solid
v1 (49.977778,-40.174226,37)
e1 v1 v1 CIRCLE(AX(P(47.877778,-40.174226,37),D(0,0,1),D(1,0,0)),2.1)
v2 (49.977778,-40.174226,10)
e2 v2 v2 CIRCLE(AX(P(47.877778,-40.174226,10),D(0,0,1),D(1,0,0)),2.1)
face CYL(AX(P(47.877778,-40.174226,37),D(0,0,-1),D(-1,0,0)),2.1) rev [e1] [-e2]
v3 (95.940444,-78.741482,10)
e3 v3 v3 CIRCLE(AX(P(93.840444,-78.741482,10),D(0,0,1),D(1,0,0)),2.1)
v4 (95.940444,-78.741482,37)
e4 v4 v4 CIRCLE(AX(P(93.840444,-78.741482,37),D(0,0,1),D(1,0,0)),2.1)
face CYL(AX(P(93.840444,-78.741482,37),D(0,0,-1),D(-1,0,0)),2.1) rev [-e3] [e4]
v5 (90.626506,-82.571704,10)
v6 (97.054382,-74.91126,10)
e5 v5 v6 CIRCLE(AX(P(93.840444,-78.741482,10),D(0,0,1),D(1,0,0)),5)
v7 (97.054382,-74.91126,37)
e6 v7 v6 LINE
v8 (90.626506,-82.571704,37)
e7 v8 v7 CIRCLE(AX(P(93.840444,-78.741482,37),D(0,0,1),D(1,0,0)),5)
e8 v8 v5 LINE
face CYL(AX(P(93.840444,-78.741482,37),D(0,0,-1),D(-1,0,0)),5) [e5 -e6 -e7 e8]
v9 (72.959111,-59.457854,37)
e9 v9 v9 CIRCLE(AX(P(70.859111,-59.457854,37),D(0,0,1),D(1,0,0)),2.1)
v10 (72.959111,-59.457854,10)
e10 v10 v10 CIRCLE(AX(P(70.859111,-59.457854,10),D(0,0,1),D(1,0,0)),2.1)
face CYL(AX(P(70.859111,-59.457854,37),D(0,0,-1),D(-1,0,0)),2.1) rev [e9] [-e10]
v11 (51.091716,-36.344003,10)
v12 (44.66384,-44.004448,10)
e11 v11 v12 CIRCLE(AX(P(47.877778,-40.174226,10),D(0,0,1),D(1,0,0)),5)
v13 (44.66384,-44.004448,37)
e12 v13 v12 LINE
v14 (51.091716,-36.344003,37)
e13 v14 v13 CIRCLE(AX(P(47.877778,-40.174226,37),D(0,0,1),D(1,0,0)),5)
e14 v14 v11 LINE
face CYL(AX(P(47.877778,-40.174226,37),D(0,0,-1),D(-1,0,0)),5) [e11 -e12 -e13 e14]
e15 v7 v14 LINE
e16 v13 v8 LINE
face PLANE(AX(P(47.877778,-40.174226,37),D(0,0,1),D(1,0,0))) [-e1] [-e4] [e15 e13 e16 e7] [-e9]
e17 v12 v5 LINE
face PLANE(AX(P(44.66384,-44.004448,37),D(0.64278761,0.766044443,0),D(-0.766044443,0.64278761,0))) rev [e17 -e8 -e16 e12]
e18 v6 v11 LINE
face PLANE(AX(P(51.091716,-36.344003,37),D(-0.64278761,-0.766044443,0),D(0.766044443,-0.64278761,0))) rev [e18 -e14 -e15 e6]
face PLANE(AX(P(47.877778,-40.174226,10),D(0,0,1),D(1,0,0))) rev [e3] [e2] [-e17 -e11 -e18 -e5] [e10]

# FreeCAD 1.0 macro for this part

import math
import FreeCAD as App
import Part
import Sketcher
from FreeCAD import Vector
Q = App.Units.Quantity

doc = App.newDocument("Part")
body = doc.addObject("PartDesign::Body", "Body")

# Sketch on XY plane
sketch1 = body.newObject("Sketcher::SketchObject", "Sketch")
sketch1.AttachmentSupport = (doc.getObject("XY_Plane"), [""])
sketch1.MapMode = "FlatFace"
sketch1.AttachmentOffset = App.Placement(Vector(0, 0, 10), App.Rotation())
sketch1.addGeometry([
    Part.LineSegment(Vector(44.7, -44, 0), Vector(90.6, -82.6, 0)),  # 0
    Part.ArcOfCircle(Part.Circle(Vector(93.8, -78.7, 0), Vector(0, 0, 1), 5), math.radians(-130), math.radians(50)),  # 1
    Part.LineSegment(Vector(97.1, -74.9, 0), Vector(51.1, -36.3, 0)),  # 2
    Part.ArcOfCircle(Part.Circle(Vector(47.9, -40.2, 0), Vector(0, 0, 1), 5), math.radians(50), math.radians(230)),  # 3
    Part.Circle(Vector(93.8, -78.7, 0), Vector(0, 0, 1), 2.1),  # 4
    Part.Circle(Vector(70.9, -59.5, 0), Vector(0, 0, 1), 2.1),  # 5
    Part.Circle(Vector(47.9, -40.2, 0), Vector(0, 0, 1), 2.1),  # 6
], False)
sketch1.addConstraint([
    Sketcher.Constraint("Tangent", 0, 2, 1, 1),
    Sketcher.Constraint("Tangent", 1, 2, 2, 1),
    Sketcher.Constraint("Tangent", 2, 2, 3, 1),
    Sketcher.Constraint("Tangent", 3, 2, 0, 1),
    Sketcher.Constraint("Coincident", 4, 3, 1, 3),
    Sketcher.Constraint("Coincident", 6, 3, 3, 3),
    Sketcher.Constraint("Equal", 1, 3),
    Sketcher.Constraint("Equal", 4, 5),
    Sketcher.Constraint("Equal", 5, 6),
    Sketcher.Constraint("Radius", 1, 5.0),
    Sketcher.Constraint("Diameter", 4, 4.2),
    Sketcher.Constraint("Angle", 0, Q("-40 deg")),
    Sketcher.Constraint("Distance", 0, 60.0),
    Sketcher.Constraint("DistanceX", -1, 1, 5, 3, 70.859111),
    Sketcher.Constraint("DistanceY", 1, 2, -1, 1, 74.91126),
    Sketcher.Constraint("DistanceX", -1, 1, 3, 2, 44.66384),
    Sketcher.Constraint("DistanceY", 4, 3, 5, 3, 19.283628),
])
pad1 = body.newObject("PartDesign::Pad", "Pad")
pad1.Profile = sketch1
pad1.Length = 27

doc.recompute()
